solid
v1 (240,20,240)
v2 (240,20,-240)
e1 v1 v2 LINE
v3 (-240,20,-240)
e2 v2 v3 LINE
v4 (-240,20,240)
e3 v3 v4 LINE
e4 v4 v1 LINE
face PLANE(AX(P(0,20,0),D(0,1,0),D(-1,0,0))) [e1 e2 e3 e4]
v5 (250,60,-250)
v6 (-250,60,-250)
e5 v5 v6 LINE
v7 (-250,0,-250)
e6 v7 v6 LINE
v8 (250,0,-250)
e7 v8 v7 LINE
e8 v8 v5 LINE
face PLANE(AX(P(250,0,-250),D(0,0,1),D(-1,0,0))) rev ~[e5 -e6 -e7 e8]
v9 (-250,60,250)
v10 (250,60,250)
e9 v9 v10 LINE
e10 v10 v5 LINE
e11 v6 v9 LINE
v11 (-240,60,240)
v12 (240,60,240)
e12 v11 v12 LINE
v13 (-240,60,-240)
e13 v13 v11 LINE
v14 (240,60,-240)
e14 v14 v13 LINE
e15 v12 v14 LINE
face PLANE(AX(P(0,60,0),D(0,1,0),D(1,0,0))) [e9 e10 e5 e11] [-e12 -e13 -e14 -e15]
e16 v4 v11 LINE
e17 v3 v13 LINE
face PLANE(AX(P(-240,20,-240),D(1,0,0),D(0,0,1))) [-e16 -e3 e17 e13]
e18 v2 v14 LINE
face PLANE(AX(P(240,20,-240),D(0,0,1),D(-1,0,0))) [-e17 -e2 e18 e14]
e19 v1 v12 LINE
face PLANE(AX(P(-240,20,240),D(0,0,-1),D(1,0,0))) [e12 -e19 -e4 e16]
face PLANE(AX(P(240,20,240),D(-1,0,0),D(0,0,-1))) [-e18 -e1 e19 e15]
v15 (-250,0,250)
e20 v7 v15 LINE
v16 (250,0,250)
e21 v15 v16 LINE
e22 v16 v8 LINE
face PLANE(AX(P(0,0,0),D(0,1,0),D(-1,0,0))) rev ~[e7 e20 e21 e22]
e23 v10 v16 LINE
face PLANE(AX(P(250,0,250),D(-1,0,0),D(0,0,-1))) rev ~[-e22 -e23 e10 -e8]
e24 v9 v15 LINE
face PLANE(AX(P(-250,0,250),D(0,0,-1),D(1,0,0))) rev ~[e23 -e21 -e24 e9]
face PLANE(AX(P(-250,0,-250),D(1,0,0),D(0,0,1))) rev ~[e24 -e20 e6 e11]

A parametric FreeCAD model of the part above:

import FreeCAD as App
import Part
import Sketcher


def add_polygon(sketch, points):
    """Adds a closed chain of lines whose ends are joined by coincident constraints."""
    first, n = sketch.GeometryCount, len(points)
    for a, b in zip(points, points[1:] + points[:1]):
        sketch.addGeometry(Part.LineSegment(App.Vector(*a, 0), App.Vector(*b, 0)), False)
    for i in range(n):
        sketch.addConstraint(Sketcher.Constraint("Coincident", first + i, 2, first + (i + 1) % n, 1))

doc = App.newDocument("Part")
body = doc.addObject("PartDesign::Body", "Body")

sketch1 = body.newObject("Sketcher::SketchObject", "Sketch")
sketch1.AttachmentSupport = (doc.getObject("XZ_Plane"), [""])
sketch1.MapMode = "FlatFace"
add_polygon(sketch1, [(250, 250), (250, -250), (-250, -250), (-250, 250)])
sketch1.addConstraint(Sketcher.Constraint("Vertical", 0))
sketch1.addConstraint(Sketcher.Constraint("Horizontal", 1))
sketch1.addConstraint(Sketcher.Constraint("Vertical", 2))
sketch1.addConstraint(Sketcher.Constraint("Horizontal", 3))
sketch1.addConstraint(Sketcher.Constraint("Symmetric", 0, 2, 2, 2, -1, 1))
sketch1.addConstraint(Sketcher.Constraint("Equal", 3, 0))
sketch1.addConstraint(Sketcher.Constraint("DistanceX", 1, 2, 1, 1, 500.0))
pad1 = body.newObject("PartDesign::Pad", "Pad")
pad1.Profile = sketch1
pad1.Length = 20
pad1.Reversed = True

sketch2 = body.newObject("Sketcher::SketchObject", "Sketch001")
sketch2.AttachmentSupport = (doc.getObject("XZ_Plane"), [""])
sketch2.MapMode = "FlatFace"
sketch2.AttachmentOffset = App.Placement(App.Vector(0, 0, -20), App.Rotation())
add_polygon(sketch2, [(250, -250), (-250, -250), (-250, 250), (250, 250)])
add_polygon(sketch2, [(-240, -240), (240, -240), (240, 240), (-240, 240)])
sketch2.addConstraint(Sketcher.Constraint("Horizontal", 0))
sketch2.addConstraint(Sketcher.Constraint("Vertical", 1))
sketch2.addConstraint(Sketcher.Constraint("Horizontal", 2))
sketch2.addConstraint(Sketcher.Constraint("Vertical", 3))
sketch2.addConstraint(Sketcher.Constraint("Horizontal", 4))
sketch2.addConstraint(Sketcher.Constraint("Vertical", 5))
sketch2.addConstraint(Sketcher.Constraint("Horizontal", 6))
sketch2.addConstraint(Sketcher.Constraint("Vertical", 7))
sketch2.addConstraint(Sketcher.Constraint("Symmetric", 0, 2, 2, 2, -1, 1))
sketch2.addConstraint(Sketcher.Constraint("Symmetric", 4, 2, 6, 2, -1, 1))
sketch2.addConstraint(Sketcher.Constraint("Equal", 2, 1))
sketch2.addConstraint(Sketcher.Constraint("Equal", 6, 5))
sketch2.addConstraint(Sketcher.Constraint("DistanceX", 4, 1, 4, 2, 480.0))
sketch2.addConstraint(Sketcher.Constraint("DistanceX", 0, 2, 0, 1, 500.0))
pad2 = body.newObject("PartDesign::Pad", "Pad001")
pad2.Profile = sketch2
pad2.Length = 40
pad2.Reversed = True

doc.recompute()
